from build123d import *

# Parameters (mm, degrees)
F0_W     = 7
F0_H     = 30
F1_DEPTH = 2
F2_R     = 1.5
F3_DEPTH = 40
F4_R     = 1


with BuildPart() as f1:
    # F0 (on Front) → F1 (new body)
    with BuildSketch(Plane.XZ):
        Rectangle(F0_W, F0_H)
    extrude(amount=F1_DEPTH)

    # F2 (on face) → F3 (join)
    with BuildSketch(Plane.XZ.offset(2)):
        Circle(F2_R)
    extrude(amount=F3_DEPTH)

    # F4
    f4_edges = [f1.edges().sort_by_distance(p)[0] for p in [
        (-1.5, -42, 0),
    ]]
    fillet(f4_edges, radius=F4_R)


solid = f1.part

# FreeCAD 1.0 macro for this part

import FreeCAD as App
import Part
import Sketcher

V = App.Vector
Q = App.Units.Quantity


def edges_at(feature, points):
    """Names of the edges that pass closest to the given points."""
    edges = feature.Shape.Edges
    near = lambda p: min(range(len(edges)), key=lambda i: edges[i].distToShape(Part.Vertex(*p))[0])
    return sorted({f"Edge{near(p) + 1}" for p in points})

doc = App.newDocument("Part")
params = doc.addObject("Spreadsheet::Sheet", "Params")
for row, (alias, value) in enumerate([
    ("sketch1_width", "7 mm"),
    ("sketch1_height", "30 mm"),
    ("pad1_length", "2 mm"),
    ("sketch2_diameter", "3 mm"),
    ("pad2_length", "40 mm"),
    ("fillet_radius", "1 mm"),
], start=1):
    params.set(f"A{row}", alias)
    params.set(f"B{row}", "=" + value)
    params.setAlias(f"B{row}", alias)

body = doc.addObject("PartDesign::Body", "Body")

sketch1 = doc.addObject("Sketcher::SketchObject", "Sketch")
body.addObject(sketch1)
sketch1.AttachmentSupport = (doc.XZ_Plane, [""])
sketch1.MapMode = "FlatFace"
sketch1.addGeometry(Part.LineSegment(V(-3.5, 15, 0), V(-3.5, -15, 0)), False)
sketch1.addGeometry(Part.LineSegment(V(-3.5, -15, 0), V(3.5, -15, 0)), False)
sketch1.addGeometry(Part.LineSegment(V(3.5, -15, 0), V(3.5, 15, 0)), False)
sketch1.addGeometry(Part.LineSegment(V(3.5, 15, 0), V(-3.5, 15, 0)), False)
sketch1.addConstraint(Sketcher.Constraint("Coincident", 0, 2, 1, 1))
sketch1.addConstraint(Sketcher.Constraint("Coincident", 1, 2, 2, 1))
sketch1.addConstraint(Sketcher.Constraint("Coincident", 2, 2, 3, 1))
sketch1.addConstraint(Sketcher.Constraint("Coincident", 3, 2, 0, 1))
sketch1.addConstraint(Sketcher.Constraint("Vertical", 0))
sketch1.addConstraint(Sketcher.Constraint("Horizontal", 1))
sketch1.addConstraint(Sketcher.Constraint("Vertical", 2))
sketch1.addConstraint(Sketcher.Constraint("Horizontal", 3))
sketch1.addConstraint(Sketcher.Constraint("Symmetric", 0, 2, 2, 2, -1, 1))
sketch1.addConstraint(Sketcher.Constraint("DistanceX", 1, 1, 1, 2, Q("7 mm")))
sketch1.addConstraint(Sketcher.Constraint("DistanceY", 0, 2, 0, 1, Q("30 mm")))
sketch1.setExpression("Constraints[9]", "Params.sketch1_width")
sketch1.setExpression("Constraints[10]", "Params.sketch1_height")
pad1 = doc.addObject("PartDesign::Pad", "Pad")
body.addObject(pad1)
pad1.Profile = sketch1
pad1.setExpression("Length", "Params.pad1_length")

sketch2 = doc.addObject("Sketcher::SketchObject", "Sketch001")
body.addObject(sketch2)
sketch2.AttachmentSupport = (doc.XZ_Plane, [""])
sketch2.MapMode = "FlatFace"
sketch2.AttachmentOffset = App.Placement(V(0, 0, 2), App.Rotation())
sketch2.addGeometry(Part.Circle(V(0, 0, 0), V(0, 0, 1), 1.5), False)
sketch2.addConstraint(Sketcher.Constraint("Coincident", 0, 3, -1, 1))
sketch2.addConstraint(Sketcher.Constraint("Diameter", 0, Q("3 mm")))
sketch2.setExpression("Constraints[1]", "Params.sketch2_diameter")
pad2 = doc.addObject("PartDesign::Pad", "Pad001")
body.addObject(pad2)
pad2.Profile = sketch2
pad2.setExpression("Length", "Params.pad2_length")
doc.recompute()

fillet = doc.addObject("PartDesign::Fillet", "Fillet")
body.addObject(fillet)
fillet.Base = (pad2, edges_at(pad2, [(-1.5, -42, 0)]))
fillet.setExpression("Radius", "Params.fillet_radius")

doc.recompute()
